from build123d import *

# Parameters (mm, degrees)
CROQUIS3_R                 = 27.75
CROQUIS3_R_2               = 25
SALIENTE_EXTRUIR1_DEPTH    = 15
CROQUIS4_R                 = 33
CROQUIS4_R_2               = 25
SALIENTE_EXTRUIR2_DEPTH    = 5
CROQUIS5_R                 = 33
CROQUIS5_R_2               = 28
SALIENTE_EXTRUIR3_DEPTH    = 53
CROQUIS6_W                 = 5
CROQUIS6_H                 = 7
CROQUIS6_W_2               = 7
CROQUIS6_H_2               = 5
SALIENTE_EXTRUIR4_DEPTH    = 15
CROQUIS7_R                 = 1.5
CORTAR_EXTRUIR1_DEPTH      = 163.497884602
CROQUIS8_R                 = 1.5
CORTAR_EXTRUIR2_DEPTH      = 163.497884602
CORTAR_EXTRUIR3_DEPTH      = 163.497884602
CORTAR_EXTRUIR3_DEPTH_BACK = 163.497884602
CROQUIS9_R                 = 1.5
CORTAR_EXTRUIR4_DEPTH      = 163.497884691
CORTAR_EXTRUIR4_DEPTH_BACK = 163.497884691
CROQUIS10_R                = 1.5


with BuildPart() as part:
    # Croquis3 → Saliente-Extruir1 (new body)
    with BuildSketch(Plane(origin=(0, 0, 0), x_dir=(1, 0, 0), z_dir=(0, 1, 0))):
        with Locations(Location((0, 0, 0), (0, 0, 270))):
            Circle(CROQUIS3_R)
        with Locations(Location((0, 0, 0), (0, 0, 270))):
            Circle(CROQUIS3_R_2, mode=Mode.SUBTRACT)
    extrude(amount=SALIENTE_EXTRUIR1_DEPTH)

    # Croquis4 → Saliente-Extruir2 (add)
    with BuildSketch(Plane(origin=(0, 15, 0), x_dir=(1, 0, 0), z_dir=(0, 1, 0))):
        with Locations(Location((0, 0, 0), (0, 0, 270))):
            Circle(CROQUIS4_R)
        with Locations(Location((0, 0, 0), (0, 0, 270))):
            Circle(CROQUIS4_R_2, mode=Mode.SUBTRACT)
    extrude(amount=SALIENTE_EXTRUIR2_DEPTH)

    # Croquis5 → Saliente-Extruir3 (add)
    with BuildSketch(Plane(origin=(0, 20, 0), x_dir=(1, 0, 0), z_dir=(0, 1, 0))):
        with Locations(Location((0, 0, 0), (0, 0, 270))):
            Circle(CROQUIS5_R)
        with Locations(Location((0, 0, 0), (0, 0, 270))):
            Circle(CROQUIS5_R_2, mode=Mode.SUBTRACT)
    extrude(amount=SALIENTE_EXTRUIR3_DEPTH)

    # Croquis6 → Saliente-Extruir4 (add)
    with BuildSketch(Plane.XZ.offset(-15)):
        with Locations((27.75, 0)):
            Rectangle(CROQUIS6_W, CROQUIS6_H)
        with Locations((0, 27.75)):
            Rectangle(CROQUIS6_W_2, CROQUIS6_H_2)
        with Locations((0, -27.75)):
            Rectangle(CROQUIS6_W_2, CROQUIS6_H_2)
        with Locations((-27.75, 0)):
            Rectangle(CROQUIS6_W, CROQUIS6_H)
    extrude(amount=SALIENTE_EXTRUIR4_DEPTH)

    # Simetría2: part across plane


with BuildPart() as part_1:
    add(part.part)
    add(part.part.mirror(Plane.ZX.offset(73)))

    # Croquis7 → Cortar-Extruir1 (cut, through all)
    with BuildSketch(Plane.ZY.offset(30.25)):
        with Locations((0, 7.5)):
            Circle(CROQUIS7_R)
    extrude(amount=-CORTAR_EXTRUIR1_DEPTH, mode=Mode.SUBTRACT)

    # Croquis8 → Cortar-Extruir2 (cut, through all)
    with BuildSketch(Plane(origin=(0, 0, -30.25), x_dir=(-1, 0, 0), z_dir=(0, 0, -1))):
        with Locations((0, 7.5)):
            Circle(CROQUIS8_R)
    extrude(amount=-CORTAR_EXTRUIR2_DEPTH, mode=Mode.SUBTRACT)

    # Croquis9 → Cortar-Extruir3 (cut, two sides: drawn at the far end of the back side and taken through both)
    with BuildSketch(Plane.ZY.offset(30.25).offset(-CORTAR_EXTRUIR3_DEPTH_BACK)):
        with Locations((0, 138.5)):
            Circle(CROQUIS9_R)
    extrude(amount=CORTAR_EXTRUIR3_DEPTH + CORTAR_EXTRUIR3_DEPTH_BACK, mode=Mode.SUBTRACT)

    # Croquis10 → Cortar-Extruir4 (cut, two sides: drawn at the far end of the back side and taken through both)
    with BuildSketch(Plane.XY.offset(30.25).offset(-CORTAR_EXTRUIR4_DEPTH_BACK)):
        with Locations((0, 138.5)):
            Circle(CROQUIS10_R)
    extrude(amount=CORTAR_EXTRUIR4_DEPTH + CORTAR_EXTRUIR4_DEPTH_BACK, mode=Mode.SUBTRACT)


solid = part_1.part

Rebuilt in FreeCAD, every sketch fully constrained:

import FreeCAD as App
import Part
import Sketcher

V = App.Vector


def add_polygon(sketch, points):
    """Adds a closed chain of lines whose ends are joined by coincident constraints."""
    first, n = sketch.GeometryCount, len(points)
    for a, b in zip(points, points[1:] + points[:1]):
        sketch.addGeometry(Part.LineSegment(App.Vector(*a, 0), App.Vector(*b, 0)), False)
    for i in range(n):
        sketch.addConstraint(Sketcher.Constraint("Coincident", first + i, 2, first + (i + 1) % n, 1))

doc = App.newDocument("Part")
body = doc.addObject("PartDesign::Body", "Body")

sketch1 = body.newObject("Sketcher::SketchObject", "Sketch")
sketch1.AttachmentSupport = (doc.getObject("XZ_Plane"), [""])
sketch1.MapMode = "FlatFace"
sketch1.addGeometry([
    Part.Circle(V(0, 0, 0), V(0, 0, 1), 28),
    Part.Circle(V(0, 0, 0), V(0, 0, 1), 25),
], False)
sketch1.addConstraint([
    Sketcher.Constraint("Coincident", 0, 3, -1, 1),
    Sketcher.Constraint("Coincident", 1, 3, -1, 1),
    Sketcher.Constraint("Diameter", 1, 50.0),
    Sketcher.Constraint("Diameter", 0, 55.5),
])
pad1 = body.newObject("PartDesign::Pad", "Pad")
pad1.Profile = sketch1
pad1.Length = 15
pad1.Reversed = True

sketch2 = body.newObject("Sketcher::SketchObject", "Sketch001")
sketch2.AttachmentSupport = (doc.getObject("XZ_Plane"), [""])
sketch2.MapMode = "FlatFace"
sketch2.AttachmentOffset = App.Placement(V(0, 0, -15), App.Rotation())
sketch2.addGeometry([
    Part.Circle(V(0, 0, 0), V(0, 0, 1), 33),
    Part.Circle(V(0, 0, 0), V(0, 0, 1), 25),
], False)
sketch2.addConstraint([
    Sketcher.Constraint("Coincident", 0, 3, -1, 1),
    Sketcher.Constraint("Coincident", 1, 3, -1, 1),
    Sketcher.Constraint("Diameter", 0, 66.0),
    Sketcher.Constraint("Diameter", 1, 50.0),
])
pad2 = body.newObject("PartDesign::Pad", "Pad001")
pad2.Profile = sketch2
pad2.Length = 5
pad2.Reversed = True

sketch3 = body.newObject("Sketcher::SketchObject", "Sketch002")
sketch3.AttachmentSupport = (doc.getObject("XZ_Plane"), [""])
sketch3.MapMode = "FlatFace"
sketch3.AttachmentOffset = App.Placement(V(0, 0, -20), App.Rotation())
sketch3.addGeometry([
    Part.Circle(V(0, 0, 0), V(0, 0, 1), 33),
    Part.Circle(V(0, 0, 0), V(0, 0, 1), 28),
], False)
sketch3.addConstraint([
    Sketcher.Constraint("Coincident", 0, 3, -1, 1),
    Sketcher.Constraint("Coincident", 1, 3, -1, 1),
    Sketcher.Constraint("Diameter", 0, 66.0),
    Sketcher.Constraint("Diameter", 1, 56.0),
])
pad3 = body.newObject("PartDesign::Pad", "Pad002")
pad3.Profile = sketch3
pad3.Length = 53
pad3.Reversed = True

sketch4 = body.newObject("Sketcher::SketchObject", "Sketch003")
sketch4.AttachmentSupport = (doc.getObject("XZ_Plane"), [""])
sketch4.MapMode = "FlatFace"
sketch4.AttachmentOffset = App.Placement(V(0, 0, -15), App.Rotation())
add_polygon(sketch4, [(25, 4), (25, -4), (30, -4), (30, 4)])
add_polygon(sketch4, [(-4, 30), (-4, 25), (4, 25), (4, 30)])
add_polygon(sketch4, [(-4, -25), (-4, -30), (4, -30), (4, -25)])
add_polygon(sketch4, [(-30, 4), (-30, -4), (-25, -4), (-25, 4)])
sketch4.addConstraint([
    Sketcher.Constraint("Vertical", 0),
    Sketcher.Constraint("Horizontal", 1),
    Sketcher.Constraint("Vertical", 2),
    Sketcher.Constraint("Horizontal", 3),
    Sketcher.Constraint("Vertical", 4),
    Sketcher.Constraint("Horizontal", 5),
    Sketcher.Constraint("Vertical", 6),
    Sketcher.Constraint("Horizontal", 7),
    Sketcher.Constraint("Vertical", 8),
    Sketcher.Constraint("Horizontal", 9),
    Sketcher.Constraint("Vertical", 10),
    Sketcher.Constraint("Horizontal", 11),
    Sketcher.Constraint("Vertical", 12),
    Sketcher.Constraint("Horizontal", 13),
    Sketcher.Constraint("Vertical", 14),
    Sketcher.Constraint("Horizontal", 15),
    Sketcher.Constraint("Symmetric", 6, 2, 8, 2, -1, 1),
    Sketcher.Constraint("Symmetric", 4, 2, 10, 2, -1, 1),
    Sketcher.Constraint("Symmetric", 2, 2, 12, 2, -1, 1),
    Sketcher.Constraint("Symmetric", 0, 2, 14, 2, -1, 1),
    Sketcher.Constraint("Horizontal", 1, 2, 12, 2),
    Sketcher.Constraint("Vertical", 7, 2, 8, 2),
    Sketcher.Constraint("Equal", 11, 0),
    Sketcher.Constraint("Equal", 15, 4),
    Sketcher.Constraint("DistanceX", 1, 1, 1, 2, 5.0),
    Sketcher.Constraint("DistanceX", 5, 1, 5, 2, 7.0),
    Sketcher.Constraint("DistanceY", 8, 2, 4, 2, 55.5),
    Sketcher.Constraint("DistanceX", -1, 1, 0, 2, 25.25),
])
pad4 = body.newObject("PartDesign::Pad", "Pad003")
pad4.Profile = sketch4
pad4.Length = 15
body2 = doc.addObject("PartDesign::Body", "Body001")
doc.recompute()

body2.BaseFeature = body
doc.recompute()

mirroring = doc.addObject("Part::Mirroring", "Mirroring")
mirroring.Source = body
mirroring.Base = V(0, 73, 0)
mirroring.Normal = V(0, 1, 0)
body3 = doc.addObject("PartDesign::Body", "Body002")
body3.BaseFeature = mirroring
boolean = body2.newObject("PartDesign::Boolean", "Boolean")
boolean.Type = "Fuse"
boolean.addObjects([body3])
doc.recompute()

sketch5 = body2.newObject("Sketcher::SketchObject", "Sketch004")
sketch5.AttachmentSupport = (doc.getObject("YZ_Plane001"), [""])
sketch5.MapMode = "FlatFace"
sketch5.AttachmentOffset = App.Placement(V(0, 0, -30.25), App.Rotation())
sketch5.addGeometry(Part.Circle(V(7.5, 0, 0), V(0, 0, 1), 1.5), False)
sketch5.addConstraint([
    Sketcher.Constraint("PointOnObject", 0, 3, -1),
    Sketcher.Constraint("Diameter", 0, 3.0),
    Sketcher.Constraint("DistanceX", -1, 1, 0, 3, 7.5),
])
pocket1 = body2.newObject("PartDesign::Pocket", "Pocket")
pocket1.Profile = sketch5
pocket1.Type = "ThroughAll"
pocket1.Reversed = True

sketch6 = body2.newObject("Sketcher::SketchObject", "Sketch005")
sketch6.AttachmentSupport = (doc.getObject("XY_Plane001"), [""])
sketch6.MapMode = "FlatFace"
sketch6.AttachmentOffset = App.Placement(V(0, 0, -30.25), App.Rotation())
sketch6.addGeometry(Part.Circle(V(0, 7.5, 0), V(0, 0, 1), 1.5), False)
sketch6.addConstraint([
    Sketcher.Constraint("PointOnObject", 0, 3, -2),
    Sketcher.Constraint("Diameter", 0, 3.0),
    Sketcher.Constraint("DistanceY", -1, 1, 0, 3, 7.5),
])
pocket2 = body2.newObject("PartDesign::Pocket", "Pocket001")
pocket2.Profile = sketch6
pocket2.Type = "ThroughAll"
pocket2.Reversed = True

sketch7 = body2.newObject("Sketcher::SketchObject", "Sketch006")
sketch7.AttachmentSupport = (doc.getObject("YZ_Plane001"), [""])
sketch7.MapMode = "FlatFace"
sketch7.AttachmentOffset = App.Placement(V(0, 0, -30.25), App.Rotation())
sketch7.addGeometry(Part.Circle(V(138.5, 0, 0), V(0, 0, 1), 1.5), False)
sketch7.addConstraint([
    Sketcher.Constraint("PointOnObject", 0, 3, -1),
    Sketcher.Constraint("Diameter", 0, 3.0),
    Sketcher.Constraint("DistanceX", -1, 1, 0, 3, 138.5),
])
pocket3 = body2.newObject("PartDesign::Pocket", "Pocket002")
pocket3.Profile = sketch7
pocket3.Type = "ThroughAll"
pocket3.Midplane = True

sketch8 = body2.newObject("Sketcher::SketchObject", "Sketch007")
sketch8.AttachmentSupport = (doc.getObject("XY_Plane001"), [""])
sketch8.MapMode = "FlatFace"
sketch8.AttachmentOffset = App.Placement(V(0, 0, 30.25), App.Rotation())
sketch8.addGeometry(Part.Circle(V(0, 138.5, 0), V(0, 0, 1), 1.5), False)
sketch8.addConstraint([
    Sketcher.Constraint("PointOnObject", 0, 3, -2),
    Sketcher.Constraint("Diameter", 0, 3.0),
    Sketcher.Constraint("DistanceY", -1, 1, 0, 3, 138.5),
])
pocket4 = body2.newObject("PartDesign::Pocket", "Pocket003")
pocket4.Profile = sketch8
pocket4.Type = "ThroughAll"
pocket4.Midplane = True
mirroring.Visibility = False

doc.recompute()
